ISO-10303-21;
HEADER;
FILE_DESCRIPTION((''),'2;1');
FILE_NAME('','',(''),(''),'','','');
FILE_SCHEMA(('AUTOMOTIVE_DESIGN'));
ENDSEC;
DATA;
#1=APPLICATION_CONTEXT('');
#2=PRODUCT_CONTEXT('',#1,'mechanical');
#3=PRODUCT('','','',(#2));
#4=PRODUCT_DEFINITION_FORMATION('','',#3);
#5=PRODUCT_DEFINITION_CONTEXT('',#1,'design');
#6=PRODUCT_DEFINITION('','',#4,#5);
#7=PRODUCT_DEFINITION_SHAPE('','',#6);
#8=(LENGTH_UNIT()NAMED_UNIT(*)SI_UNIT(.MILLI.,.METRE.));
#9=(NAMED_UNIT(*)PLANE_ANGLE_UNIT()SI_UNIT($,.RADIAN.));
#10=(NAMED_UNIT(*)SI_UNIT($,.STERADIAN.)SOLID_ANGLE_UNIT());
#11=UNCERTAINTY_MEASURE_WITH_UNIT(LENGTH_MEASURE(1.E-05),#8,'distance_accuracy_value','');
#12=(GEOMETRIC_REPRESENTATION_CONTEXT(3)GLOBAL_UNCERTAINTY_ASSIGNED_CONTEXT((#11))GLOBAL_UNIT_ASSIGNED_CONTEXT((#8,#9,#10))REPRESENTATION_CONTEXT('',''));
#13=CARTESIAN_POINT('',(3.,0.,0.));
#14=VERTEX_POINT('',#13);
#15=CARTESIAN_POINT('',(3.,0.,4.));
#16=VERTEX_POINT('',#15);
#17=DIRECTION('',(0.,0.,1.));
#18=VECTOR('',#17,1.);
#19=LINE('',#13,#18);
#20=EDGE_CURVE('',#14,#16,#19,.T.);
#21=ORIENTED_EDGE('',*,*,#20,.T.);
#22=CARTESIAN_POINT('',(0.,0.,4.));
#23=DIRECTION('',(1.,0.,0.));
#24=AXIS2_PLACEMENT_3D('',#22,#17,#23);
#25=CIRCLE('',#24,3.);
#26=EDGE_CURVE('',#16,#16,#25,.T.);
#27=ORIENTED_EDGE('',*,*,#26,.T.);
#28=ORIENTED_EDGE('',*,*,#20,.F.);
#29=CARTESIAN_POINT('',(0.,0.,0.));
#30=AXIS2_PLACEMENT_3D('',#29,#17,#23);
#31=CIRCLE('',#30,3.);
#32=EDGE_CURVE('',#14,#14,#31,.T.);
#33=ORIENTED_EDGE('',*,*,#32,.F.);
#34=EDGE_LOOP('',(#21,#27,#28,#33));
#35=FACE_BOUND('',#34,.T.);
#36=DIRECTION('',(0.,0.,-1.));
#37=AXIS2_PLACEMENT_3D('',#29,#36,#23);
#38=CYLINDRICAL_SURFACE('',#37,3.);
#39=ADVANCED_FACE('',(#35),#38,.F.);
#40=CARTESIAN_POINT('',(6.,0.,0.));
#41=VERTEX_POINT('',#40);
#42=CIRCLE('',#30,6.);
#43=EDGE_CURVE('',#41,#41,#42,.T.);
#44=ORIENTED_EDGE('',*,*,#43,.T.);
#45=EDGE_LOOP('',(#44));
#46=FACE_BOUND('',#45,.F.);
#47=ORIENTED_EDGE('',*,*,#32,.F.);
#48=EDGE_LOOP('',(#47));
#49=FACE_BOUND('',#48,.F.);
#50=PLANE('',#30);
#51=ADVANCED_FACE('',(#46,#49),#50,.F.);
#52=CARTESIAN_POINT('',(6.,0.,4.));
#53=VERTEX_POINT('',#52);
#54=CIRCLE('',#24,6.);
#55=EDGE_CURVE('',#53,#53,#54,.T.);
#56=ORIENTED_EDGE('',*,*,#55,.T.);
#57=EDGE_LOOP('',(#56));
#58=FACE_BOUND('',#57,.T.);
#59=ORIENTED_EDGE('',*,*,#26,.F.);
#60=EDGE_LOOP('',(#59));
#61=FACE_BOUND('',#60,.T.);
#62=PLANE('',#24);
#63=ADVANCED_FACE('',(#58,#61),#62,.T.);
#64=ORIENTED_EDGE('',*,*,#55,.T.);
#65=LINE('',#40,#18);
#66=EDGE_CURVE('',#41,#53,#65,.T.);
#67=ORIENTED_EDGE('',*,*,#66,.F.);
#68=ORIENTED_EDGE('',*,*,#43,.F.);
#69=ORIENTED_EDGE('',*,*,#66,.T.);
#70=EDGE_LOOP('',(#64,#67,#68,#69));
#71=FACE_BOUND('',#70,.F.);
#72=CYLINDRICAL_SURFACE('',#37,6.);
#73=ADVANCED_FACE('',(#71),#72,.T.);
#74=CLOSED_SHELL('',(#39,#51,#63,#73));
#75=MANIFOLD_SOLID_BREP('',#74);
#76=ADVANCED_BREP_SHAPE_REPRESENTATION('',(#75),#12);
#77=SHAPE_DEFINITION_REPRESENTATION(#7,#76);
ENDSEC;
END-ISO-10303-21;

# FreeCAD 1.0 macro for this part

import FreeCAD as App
import Part
import Sketcher
Q = App.Units.Quantity

doc = App.newDocument("Part")
params = doc.addObject("Spreadsheet::Sheet", "Params")
for row, (alias, value) in enumerate([
    ("sketch1_diameter", "12 mm"),
    ("sketch1_diameter2", "6 mm"),
    ("pad1_length", "4 mm"),
], start=1):
    params.set(f"A{row}", alias)
    params.set(f"B{row}", "=" + value)
    params.setAlias(f"B{row}", alias)

body = doc.addObject("PartDesign::Body", "Body")

sketch1 = body.newObject("Sketcher::SketchObject", "Sketch")
sketch1.AttachmentSupport = (doc.getObject("XY_Plane"), [""])
sketch1.MapMode = "FlatFace"
sketch1.addGeometry([
    Part.Circle(App.Vector(0, 0, 0), App.Vector(0, 0, 1), 6),
    Part.Circle(App.Vector(0, 0, 0), App.Vector(0, 0, 1), 3),
], False)
sketch1.addConstraint([
    Sketcher.Constraint("Coincident", 0, 3, -1, 1),
    Sketcher.Constraint("Coincident", 1, 3, -1, 1),
    Sketcher.Constraint("Diameter", 0, Q("12 mm")),
    Sketcher.Constraint("Diameter", 1, Q("6 mm")),
])
sketch1.setExpression("Constraints[2]", "Params.sketch1_diameter")
sketch1.setExpression("Constraints[3]", "Params.sketch1_diameter2")
pad1 = body.newObject("PartDesign::Pad", "Pad")
pad1.Profile = sketch1
pad1.setExpression("Length", "Params.pad1_length")

doc.recompute()
